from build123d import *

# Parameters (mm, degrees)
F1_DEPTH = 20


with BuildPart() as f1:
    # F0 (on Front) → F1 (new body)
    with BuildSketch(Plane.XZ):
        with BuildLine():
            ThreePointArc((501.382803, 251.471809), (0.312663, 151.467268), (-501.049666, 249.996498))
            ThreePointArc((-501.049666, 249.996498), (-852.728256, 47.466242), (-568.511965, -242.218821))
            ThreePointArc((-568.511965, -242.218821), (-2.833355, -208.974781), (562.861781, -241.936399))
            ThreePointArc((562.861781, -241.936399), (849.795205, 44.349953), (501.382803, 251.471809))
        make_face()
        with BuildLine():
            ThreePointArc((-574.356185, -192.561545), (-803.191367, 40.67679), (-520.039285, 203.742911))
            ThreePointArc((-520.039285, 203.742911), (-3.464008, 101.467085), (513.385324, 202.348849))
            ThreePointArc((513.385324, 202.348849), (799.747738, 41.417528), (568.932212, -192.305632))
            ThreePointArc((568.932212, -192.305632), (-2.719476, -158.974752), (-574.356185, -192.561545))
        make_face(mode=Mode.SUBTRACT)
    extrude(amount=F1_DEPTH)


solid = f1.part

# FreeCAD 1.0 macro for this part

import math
import FreeCAD as App
import Part
import Sketcher
from FreeCAD import Vector
Q = App.Units.Quantity

doc = App.newDocument("Part")
params = doc.addObject("Spreadsheet::Sheet", "Params")
for row, (alias, value) in enumerate([
    ("pad1_length", "20 mm"),
], start=1):
    params.set(f"A{row}", alias)
    params.set(f"B{row}", "=" + value)
    params.setAlias(f"B{row}", alias)

body = doc.addObject("PartDesign::Body", "Body")

# Sketch on XZ plane
sketch1 = doc.addObject("Sketcher::SketchObject", "Sketch")
body.addObject(sketch1)
sketch1.AttachmentSupport = (doc.XZ_Plane, [""])
sketch1.MapMode = "FlatFace"
sketch1.addGeometry(Part.ArcOfCircle(Part.Circle(Vector(-2, 1466, 0), Vector(0, 0, 1), 1315), math.radians(-112), math.radians(-68)), False)
sketch1.addGeometry(Part.ArcOfCircle(Part.Circle(Vector(-599, 13, 0), Vector(0, 0, 1), 257), math.radians(68), math.radians(277)), False)
sketch1.addGeometry(Part.ArcOfCircle(Part.Circle(Vector(-2, -5059, 0), Vector(0, 0, 1), 4850), math.radians(83.32), math.radians(96.71)), False)
sketch1.addGeometry(Part.ArcOfCircle(Part.Circle(Vector(595, 13, 0), Vector(0, 0, 1), 257), math.radians(-97), math.radians(111)), False)
sketch1.addGeometry(Part.ArcOfCircle(Part.Circle(Vector(-2, -5059, 0), Vector(0, 0, 1), 4900), math.radians(83.31), math.radians(96.71)), False)
sketch1.addGeometry(Part.ArcOfCircle(Part.Circle(Vector(-599, 13, 0), Vector(0, 0, 1), 207), math.radians(68), math.radians(277)), False)
sketch1.addGeometry(Part.ArcOfCircle(Part.Circle(Vector(-2, 1466, 0), Vector(0, 0, 1), 1365), math.radians(-112), math.radians(-68)), False)
sketch1.addGeometry(Part.ArcOfCircle(Part.Circle(Vector(595, 13, 0), Vector(0, 0, 1), 207), math.radians(-97), math.radians(113)), False)
sketch1.addConstraint(Sketcher.Constraint("Tangent", 0, 1, 1, 1))
sketch1.addConstraint(Sketcher.Constraint("Tangent", 1, 2, 2, 2))
sketch1.addConstraint(Sketcher.Constraint("Coincident", 2, 1, 3, 1))
sketch1.addConstraint(Sketcher.Constraint("Coincident", 3, 2, 0, 2))
sketch1.addConstraint(Sketcher.Constraint("Tangent", 4, 2, 5, 2))
sketch1.addConstraint(Sketcher.Constraint("Tangent", 5, 1, 6, 1))
sketch1.addConstraint(Sketcher.Constraint("Coincident", 6, 2, 7, 2))
sketch1.addConstraint(Sketcher.Constraint("Coincident", 7, 1, 4, 1))
sketch1.addConstraint(Sketcher.Constraint("Coincident", 5, 3, 1, 3))
sketch1.addConstraint(Sketcher.Constraint("Coincident", 7, 3, 3, 3))
sketch1.addConstraint(Sketcher.Constraint("Equal", 1, 3))
sketch1.addConstraint(Sketcher.Constraint("Equal", 5, 7))
sketch1.addConstraint(Sketcher.Constraint("Horizontal", 1, 3, 3, 3))
sketch1.addConstraint(Sketcher.Constraint("Vertical", 0, 3, 2, 3))
sketch1.addConstraint(Sketcher.Constraint("Vertical", 2, 3, 4, 3))
sketch1.addConstraint(Sketcher.Constraint("Vertical", 4, 3, 6, 3))
sketch1.addConstraint(Sketcher.Constraint("Radius", 1, Q("256.6004 mm")))
sketch1.addConstraint(Sketcher.Constraint("Radius", 5, Q("206.6004 mm")))
sketch1.addConstraint(Sketcher.Constraint("Radius", 0, Q("1315.000011 mm")))
sketch1.addConstraint(Sketcher.Constraint("Radius", 4, Q("4899.999909 mm")))
sketch1.addConstraint(Sketcher.Constraint("Radius", 2, Q("4850.000065 mm")))
sketch1.addConstraint(Sketcher.Constraint("Radius", 6, Q("1364.999996 mm")))
sketch1.addConstraint(Sketcher.Constraint("DistanceY", 2, 1, -1, 1, Q("241.936399 mm")))
sketch1.addConstraint(Sketcher.Constraint("DistanceX", 0, 3, -1, 1, Q("1.622662 mm")))
sketch1.addConstraint(Sketcher.Constraint("DistanceY", -1, 1, 1, 3, Q("12.622718 mm")))
sketch1.addConstraint(Sketcher.Constraint("DistanceX", -1, 1, 3, 3, Q("595.163809 mm")))
pad1 = doc.addObject("PartDesign::Pad", "Pad")
body.addObject(pad1)
pad1.Profile = sketch1
pad1.setExpression("Length", "Params.pad1_length")

doc.recompute()
